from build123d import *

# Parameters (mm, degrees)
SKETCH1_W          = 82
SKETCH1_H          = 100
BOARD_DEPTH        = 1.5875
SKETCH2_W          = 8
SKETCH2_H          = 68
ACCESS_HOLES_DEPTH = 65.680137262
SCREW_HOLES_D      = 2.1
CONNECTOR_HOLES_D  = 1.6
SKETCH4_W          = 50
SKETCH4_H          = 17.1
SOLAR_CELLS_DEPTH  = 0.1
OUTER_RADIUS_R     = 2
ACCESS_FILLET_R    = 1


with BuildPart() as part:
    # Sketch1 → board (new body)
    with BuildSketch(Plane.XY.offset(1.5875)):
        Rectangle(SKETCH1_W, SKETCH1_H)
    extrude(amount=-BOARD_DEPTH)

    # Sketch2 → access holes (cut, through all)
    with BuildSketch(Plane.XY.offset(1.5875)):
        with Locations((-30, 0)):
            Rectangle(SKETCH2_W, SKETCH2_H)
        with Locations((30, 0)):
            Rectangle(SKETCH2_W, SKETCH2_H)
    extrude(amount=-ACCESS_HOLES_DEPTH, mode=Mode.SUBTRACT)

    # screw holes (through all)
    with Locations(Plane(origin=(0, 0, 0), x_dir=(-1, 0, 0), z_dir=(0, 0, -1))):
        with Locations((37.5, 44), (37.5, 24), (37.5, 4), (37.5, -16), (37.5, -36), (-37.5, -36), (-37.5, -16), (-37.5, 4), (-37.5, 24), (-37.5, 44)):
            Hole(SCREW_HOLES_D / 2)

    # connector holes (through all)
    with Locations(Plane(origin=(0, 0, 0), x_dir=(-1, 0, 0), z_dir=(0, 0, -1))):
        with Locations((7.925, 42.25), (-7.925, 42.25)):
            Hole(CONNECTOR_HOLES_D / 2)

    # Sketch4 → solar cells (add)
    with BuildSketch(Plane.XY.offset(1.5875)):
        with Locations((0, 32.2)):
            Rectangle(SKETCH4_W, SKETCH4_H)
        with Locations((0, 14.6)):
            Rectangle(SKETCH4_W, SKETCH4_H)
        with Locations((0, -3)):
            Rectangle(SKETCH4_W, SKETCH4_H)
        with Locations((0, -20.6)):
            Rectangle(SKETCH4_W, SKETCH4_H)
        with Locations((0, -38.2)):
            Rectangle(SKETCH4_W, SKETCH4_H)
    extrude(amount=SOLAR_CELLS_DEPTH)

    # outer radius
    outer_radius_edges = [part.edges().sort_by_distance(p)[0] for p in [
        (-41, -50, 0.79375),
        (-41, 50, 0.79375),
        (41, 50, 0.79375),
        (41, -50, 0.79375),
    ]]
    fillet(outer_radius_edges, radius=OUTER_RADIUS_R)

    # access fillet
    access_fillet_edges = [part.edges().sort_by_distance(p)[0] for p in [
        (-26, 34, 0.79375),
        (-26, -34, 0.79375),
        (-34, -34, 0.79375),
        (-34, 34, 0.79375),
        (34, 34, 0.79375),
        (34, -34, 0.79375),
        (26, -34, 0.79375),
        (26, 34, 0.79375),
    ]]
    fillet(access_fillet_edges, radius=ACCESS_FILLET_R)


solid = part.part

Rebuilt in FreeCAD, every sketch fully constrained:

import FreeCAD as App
import Part
import Sketcher
from FreeCAD import Vector
Q = App.Units.Quantity


def edges_at(feature, points):
    """Names of the edges that pass closest to the given points."""
    edges = feature.Shape.Edges
    near = lambda p: min(range(len(edges)), key=lambda i: edges[i].distToShape(Part.Vertex(*p))[0])
    return sorted({f"Edge{near(p) + 1}" for p in points})

doc = App.newDocument("Part")
body = doc.addObject("PartDesign::Body", "Body")

sketch1 = body.newObject("Sketcher::SketchObject", "Sketch")
sketch1.AttachmentSupport = (doc.getObject("XY_Plane"), [""])
sketch1.MapMode = "FlatFace"
sketch1.AttachmentOffset = App.Placement(Vector(0, 0, 1.5875), App.Rotation())
sketch1.addGeometry([
    Part.LineSegment(Vector(-41, 50, 0), Vector(-41, -50, 0)),
    Part.LineSegment(Vector(-41, -50, 0), Vector(41, -50, 0)),
    Part.LineSegment(Vector(41, -50, 0), Vector(41, 50, 0)),
    Part.LineSegment(Vector(41, 50, 0), Vector(-41, 50, 0)),
], False)
sketch1.addConstraint([
    Sketcher.Constraint("Coincident", 0, 2, 1, 1),
    Sketcher.Constraint("Coincident", 1, 2, 2, 1),
    Sketcher.Constraint("Coincident", 2, 2, 3, 1),
    Sketcher.Constraint("Coincident", 3, 2, 0, 1),
    Sketcher.Constraint("Vertical", 0),
    Sketcher.Constraint("Horizontal", 1),
    Sketcher.Constraint("Vertical", 2),
    Sketcher.Constraint("Horizontal", 3),
    Sketcher.Constraint("Symmetric", 0, 2, 2, 2, -1, 1),
    Sketcher.Constraint("DistanceX", 1, 1, 1, 2, Q("82 mm")),
    Sketcher.Constraint("DistanceY", 0, 2, 0, 1, Q("100 mm")),
])
pad1 = body.newObject("PartDesign::Pad", "Pad")
pad1.Profile = sketch1
pad1.Length = 1.5875
pad1.Reversed = True

sketch2 = body.newObject("Sketcher::SketchObject", "Sketch001")
sketch2.AttachmentSupport = (doc.getObject("XY_Plane"), [""])
sketch2.MapMode = "FlatFace"
sketch2.AttachmentOffset = App.Placement(Vector(0, 0, 1.5875), App.Rotation())
sketch2.addGeometry([
    Part.LineSegment(Vector(-34, 34, 0), Vector(-34, -34, 0)),
    Part.LineSegment(Vector(-34, -34, 0), Vector(-26, -34, 0)),
    Part.LineSegment(Vector(-26, -34, 0), Vector(-26, 34, 0)),
    Part.LineSegment(Vector(-26, 34, 0), Vector(-34, 34, 0)),
    Part.LineSegment(Vector(26, 34, 0), Vector(26, -34, 0)),
    Part.LineSegment(Vector(26, -34, 0), Vector(34, -34, 0)),
    Part.LineSegment(Vector(34, -34, 0), Vector(34, 34, 0)),
    Part.LineSegment(Vector(34, 34, 0), Vector(26, 34, 0)),
], False)
sketch2.addConstraint([
    Sketcher.Constraint("Coincident", 0, 2, 1, 1),
    Sketcher.Constraint("Coincident", 1, 2, 2, 1),
    Sketcher.Constraint("Coincident", 2, 2, 3, 1),
    Sketcher.Constraint("Coincident", 3, 2, 0, 1),
    Sketcher.Constraint("Coincident", 4, 2, 5, 1),
    Sketcher.Constraint("Coincident", 5, 2, 6, 1),
    Sketcher.Constraint("Coincident", 6, 2, 7, 1),
    Sketcher.Constraint("Coincident", 7, 2, 4, 1),
    Sketcher.Constraint("Vertical", 0),
    Sketcher.Constraint("Horizontal", 1),
    Sketcher.Constraint("Vertical", 2),
    Sketcher.Constraint("Horizontal", 3),
    Sketcher.Constraint("Vertical", 4),
    Sketcher.Constraint("Horizontal", 5),
    Sketcher.Constraint("Vertical", 6),
    Sketcher.Constraint("Horizontal", 7),
    Sketcher.Constraint("Symmetric", 2, 2, 4, 2, -1, 1),
    Sketcher.Constraint("Symmetric", 0, 2, 6, 2, -1, 1),
    Sketcher.Constraint("Horizontal", 1, 2, 4, 2),
    Sketcher.Constraint("DistanceX", 1, 1, 1, 2, Q("8 mm")),
    Sketcher.Constraint("DistanceY", 0, 2, 0, 1, Q("68 mm")),
    Sketcher.Constraint("DistanceX", 0, 2, -1, 1, Q("34 mm")),
])
pocket1 = body.newObject("PartDesign::Pocket", "Pocket")
pocket1.Profile = sketch2
pocket1.Type = "ThroughAll"

sketch3 = body.newObject("Sketcher::SketchObject", "Sketch002")
sketch3.AttachmentSupport = (doc.getObject("XY_Plane"), [""])
sketch3.MapMode = "FlatFace"
sketch3.addGeometry([
    Part.Circle(Vector(-37.5, 44, 0), Vector(0, 0, 1), 1.05),
    Part.Circle(Vector(-37.5, 24, 0), Vector(0, 0, 1), 1.05),
    Part.Circle(Vector(-37.5, 4, 0), Vector(0, 0, 1), 1.05),
    Part.Circle(Vector(-37.5, -16, 0), Vector(0, 0, 1), 1.05),
    Part.Circle(Vector(-37.5, -36, 0), Vector(0, 0, 1), 1.05),
    Part.Circle(Vector(37.5, -36, 0), Vector(0, 0, 1), 1.05),
    Part.Circle(Vector(37.5, -16, 0), Vector(0, 0, 1), 1.05),
    Part.Circle(Vector(37.5, 4, 0), Vector(0, 0, 1), 1.05),
    Part.Circle(Vector(37.5, 24, 0), Vector(0, 0, 1), 1.05),
    Part.Circle(Vector(37.5, 44, 0), Vector(0, 0, 1), 1.05),
], False)
sketch3.addConstraint([
    Sketcher.Constraint("Equal", 0, 1),
    Sketcher.Constraint("Equal", 1, 2),
    Sketcher.Constraint("Equal", 2, 3),
    Sketcher.Constraint("Equal", 3, 4),
    Sketcher.Constraint("Equal", 4, 5),
    Sketcher.Constraint("Equal", 5, 6),
    Sketcher.Constraint("Equal", 6, 7),
    Sketcher.Constraint("Equal", 7, 8),
    Sketcher.Constraint("Equal", 8, 9),
    Sketcher.Constraint("Symmetric", 4, 3, 5, 3, -2),
    Sketcher.Constraint("Symmetric", 3, 3, 6, 3, -2),
    Sketcher.Constraint("Symmetric", 2, 3, 7, 3, -2),
    Sketcher.Constraint("Symmetric", 1, 3, 8, 3, -2),
    Sketcher.Constraint("Symmetric", 0, 3, 9, 3, -2),
    Sketcher.Constraint("Vertical", 0, 3, 1, 3),
    Sketcher.Constraint("Vertical", 1, 3, 2, 3),
    Sketcher.Constraint("Vertical", 2, 3, 3, 3),
    Sketcher.Constraint("Vertical", 3, 3, 4, 3),
    Sketcher.Constraint("Diameter", 0, Q("2.1 mm")),
    Sketcher.Constraint("DistanceY", -1, 1, 0, 3, Q("44 mm")),
    Sketcher.Constraint("DistanceY", -1, 1, 1, 3, Q("24 mm")),
    Sketcher.Constraint("DistanceY", -1, 1, 2, 3, Q("4 mm")),
    Sketcher.Constraint("DistanceY", 3, 3, -1, 1, Q("16 mm")),
    Sketcher.Constraint("DistanceY", 4, 3, -1, 1, Q("36 mm")),
    Sketcher.Constraint("DistanceX", 4, 3, 5, 3, Q("75 mm")),
])
doc.recompute()
hole = body.newObject("PartDesign::Hole", "Hole")
hole.Profile = sketch3
hole.ThreadType = "None"
hole.Diameter = 2.1
hole.DepthType = "ThroughAll"
hole.Reversed = True

sketch4 = body.newObject("Sketcher::SketchObject", "Sketch003")
sketch4.AttachmentSupport = (doc.getObject("XY_Plane"), [""])
sketch4.MapMode = "FlatFace"
sketch4.addGeometry([
    Part.Circle(Vector(-7.925, 42.25, 0), Vector(0, 0, 1), 0.8),
    Part.Circle(Vector(7.925, 42.25, 0), Vector(0, 0, 1), 0.8),
], False)
sketch4.addConstraint([
    Sketcher.Constraint("Equal", 0, 1),
    Sketcher.Constraint("Symmetric", 0, 3, 1, 3, -2),
    Sketcher.Constraint("Diameter", 0, Q("1.6 mm")),
    Sketcher.Constraint("DistanceY", -1, 1, 0, 3, Q("42.25 mm")),
    Sketcher.Constraint("DistanceX", 0, 3, 1, 3, Q("15.85 mm")),
])
doc.recompute()
hole2 = body.newObject("PartDesign::Hole", "Hole001")
hole2.Profile = sketch4
hole2.ThreadType = "None"
hole2.Diameter = 1.6
hole2.DepthType = "ThroughAll"
hole2.Reversed = True

sketch5 = body.newObject("Sketcher::SketchObject", "Sketch004")
sketch5.AttachmentSupport = (doc.getObject("XY_Plane"), [""])
sketch5.MapMode = "FlatFace"
sketch5.AttachmentOffset = App.Placement(Vector(0, 0, 1.5875), App.Rotation())
sketch5.addGeometry([
    Part.LineSegment(Vector(-25, 40.75, 0), Vector(-25, 23.65, 0)),
    Part.LineSegment(Vector(-25, 23.65, 0), Vector(25, 23.65, 0)),
    Part.LineSegment(Vector(25, 23.65, 0), Vector(25, 40.75, 0)),
    Part.LineSegment(Vector(25, 40.75, 0), Vector(-25, 40.75, 0)),
    Part.LineSegment(Vector(-25, 23.15, 0), Vector(-25, 6.05, 0)),
    Part.LineSegment(Vector(-25, 6.05, 0), Vector(25, 6.05, 0)),
    Part.LineSegment(Vector(25, 6.05, 0), Vector(25, 23.15, 0)),
    Part.LineSegment(Vector(25, 23.15, 0), Vector(-25, 23.15, 0)),
    Part.LineSegment(Vector(-25, 5.55, 0), Vector(-25, -11.55, 0)),
    Part.LineSegment(Vector(-25, -11.55, 0), Vector(25, -11.55, 0)),
    Part.LineSegment(Vector(25, -11.55, 0), Vector(25, 5.55, 0)),
    Part.LineSegment(Vector(25, 5.55, 0), Vector(-25, 5.55, 0)),
    Part.LineSegment(Vector(-25, -12.05, 0), Vector(-25, -29.15, 0)),
    Part.LineSegment(Vector(-25, -29.15, 0), Vector(25, -29.15, 0)),
    Part.LineSegment(Vector(25, -29.15, 0), Vector(25, -12.05, 0)),
    Part.LineSegment(Vector(25, -12.05, 0), Vector(-25, -12.05, 0)),
    Part.LineSegment(Vector(-25, -29.65, 0), Vector(-25, -46.75, 0)),
    Part.LineSegment(Vector(-25, -46.75, 0), Vector(25, -46.75, 0)),
    Part.LineSegment(Vector(25, -46.75, 0), Vector(25, -29.65, 0)),
    Part.LineSegment(Vector(25, -29.65, 0), Vector(-25, -29.65, 0)),
], False)
sketch5.addConstraint([
    Sketcher.Constraint("Coincident", 0, 2, 1, 1),
    Sketcher.Constraint("Coincident", 1, 2, 2, 1),
    Sketcher.Constraint("Coincident", 2, 2, 3, 1),
    Sketcher.Constraint("Coincident", 3, 2, 0, 1),
    Sketcher.Constraint("Coincident", 4, 2, 5, 1),
    Sketcher.Constraint("Coincident", 5, 2, 6, 1),
    Sketcher.Constraint("Coincident", 6, 2, 7, 1),
    Sketcher.Constraint("Coincident", 7, 2, 4, 1),
    Sketcher.Constraint("Coincident", 8, 2, 9, 1),
    Sketcher.Constraint("Coincident", 9, 2, 10, 1),
    Sketcher.Constraint("Coincident", 10, 2, 11, 1),
    Sketcher.Constraint("Coincident", 11, 2, 8, 1),
    Sketcher.Constraint("Coincident", 12, 2, 13, 1),
    Sketcher.Constraint("Coincident", 13, 2, 14, 1),
    Sketcher.Constraint("Coincident", 14, 2, 15, 1),
    Sketcher.Constraint("Coincident", 15, 2, 12, 1),
    Sketcher.Constraint("Coincident", 16, 2, 17, 1),
    Sketcher.Constraint("Coincident", 17, 2, 18, 1),
    Sketcher.Constraint("Coincident", 18, 2, 19, 1),
    Sketcher.Constraint("Coincident", 19, 2, 16, 1),
    Sketcher.Constraint("Vertical", 0),
    Sketcher.Constraint("Horizontal", 1),
    Sketcher.Constraint("Vertical", 2),
    Sketcher.Constraint("Horizontal", 3),
    Sketcher.Constraint("Vertical", 4),
    Sketcher.Constraint("Horizontal", 5),
    Sketcher.Constraint("Vertical", 6),
    Sketcher.Constraint("Horizontal", 7),
    Sketcher.Constraint("Vertical", 8),
    Sketcher.Constraint("Horizontal", 9),
    Sketcher.Constraint("Vertical", 10),
    Sketcher.Constraint("Horizontal", 11),
    Sketcher.Constraint("Vertical", 12),
    Sketcher.Constraint("Horizontal", 13),
    Sketcher.Constraint("Vertical", 14),
    Sketcher.Constraint("Horizontal", 15),
    Sketcher.Constraint("Vertical", 16),
    Sketcher.Constraint("Horizontal", 17),
    Sketcher.Constraint("Vertical", 18),
    Sketcher.Constraint("Horizontal", 19),
    Sketcher.Constraint("Vertical", 3, 2, 4, 2),
    Sketcher.Constraint("Vertical", 2, 2, 5, 2),
    Sketcher.Constraint("Vertical", 7, 2, 8, 2),
    Sketcher.Constraint("Vertical", 6, 2, 9, 2),
    Sketcher.Constraint("Vertical", 11, 2, 12, 2),
    Sketcher.Constraint("Vertical", 10, 2, 13, 2),
    Sketcher.Constraint("Vertical", 15, 2, 16, 2),
    Sketcher.Constraint("Vertical", 14, 2, 17, 2),
    Sketcher.Constraint("Equal", 2, 4),
    Sketcher.Constraint("Equal", 6, 8),
    Sketcher.Constraint("Equal", 10, 12),
    Sketcher.Constraint("Equal", 14, 16),
    Sketcher.Constraint("DistanceX", 1, 1, 1, 2, Q("50 mm")),
    Sketcher.Constraint("DistanceY", 0, 2, 0, 1, Q("17.1 mm")),
    Sketcher.Constraint("DistanceX", 0, 2, -1, 1, Q("25 mm")),
    Sketcher.Constraint("DistanceY", 4, 2, 0, 2, Q("17.6 mm")),
    Sketcher.Constraint("DistanceY", 8, 2, 4, 2, Q("17.6 mm")),
    Sketcher.Constraint("DistanceY", 12, 2, 8, 2, Q("17.6 mm")),
    Sketcher.Constraint("DistanceY", 16, 2, 12, 2, Q("17.6 mm")),
    Sketcher.Constraint("DistanceY", -1, 1, 0, 2, Q("23.65 mm")),
])
pad2 = body.newObject("PartDesign::Pad", "Pad001")
pad2.Profile = sketch5
pad2.Length = 0.1
doc.recompute()

fillet = body.newObject("PartDesign::Fillet", "Fillet")
fillet.Base = (pad2, edges_at(pad2, [
    (-41, -50, 0.794),
    (-41, 50, 0.794),
    (41, 50, 0.794),
    (41, -50, 0.794),
]))
fillet.Radius = 2
doc.recompute()

fillet2 = body.newObject("PartDesign::Fillet", "Fillet001")
fillet2.Base = (fillet, edges_at(fillet, [
    (-26, 34, 0.794),
    (-26, -34, 0.794),
    (-34, -34, 0.794),
    (-34, 34, 0.794),
    (34, 34, 0.794),
    (34, -34, 0.794),
    (26, -34, 0.794),
    (26, 34, 0.794),
]))
fillet2.Radius = 1

doc.recompute()
